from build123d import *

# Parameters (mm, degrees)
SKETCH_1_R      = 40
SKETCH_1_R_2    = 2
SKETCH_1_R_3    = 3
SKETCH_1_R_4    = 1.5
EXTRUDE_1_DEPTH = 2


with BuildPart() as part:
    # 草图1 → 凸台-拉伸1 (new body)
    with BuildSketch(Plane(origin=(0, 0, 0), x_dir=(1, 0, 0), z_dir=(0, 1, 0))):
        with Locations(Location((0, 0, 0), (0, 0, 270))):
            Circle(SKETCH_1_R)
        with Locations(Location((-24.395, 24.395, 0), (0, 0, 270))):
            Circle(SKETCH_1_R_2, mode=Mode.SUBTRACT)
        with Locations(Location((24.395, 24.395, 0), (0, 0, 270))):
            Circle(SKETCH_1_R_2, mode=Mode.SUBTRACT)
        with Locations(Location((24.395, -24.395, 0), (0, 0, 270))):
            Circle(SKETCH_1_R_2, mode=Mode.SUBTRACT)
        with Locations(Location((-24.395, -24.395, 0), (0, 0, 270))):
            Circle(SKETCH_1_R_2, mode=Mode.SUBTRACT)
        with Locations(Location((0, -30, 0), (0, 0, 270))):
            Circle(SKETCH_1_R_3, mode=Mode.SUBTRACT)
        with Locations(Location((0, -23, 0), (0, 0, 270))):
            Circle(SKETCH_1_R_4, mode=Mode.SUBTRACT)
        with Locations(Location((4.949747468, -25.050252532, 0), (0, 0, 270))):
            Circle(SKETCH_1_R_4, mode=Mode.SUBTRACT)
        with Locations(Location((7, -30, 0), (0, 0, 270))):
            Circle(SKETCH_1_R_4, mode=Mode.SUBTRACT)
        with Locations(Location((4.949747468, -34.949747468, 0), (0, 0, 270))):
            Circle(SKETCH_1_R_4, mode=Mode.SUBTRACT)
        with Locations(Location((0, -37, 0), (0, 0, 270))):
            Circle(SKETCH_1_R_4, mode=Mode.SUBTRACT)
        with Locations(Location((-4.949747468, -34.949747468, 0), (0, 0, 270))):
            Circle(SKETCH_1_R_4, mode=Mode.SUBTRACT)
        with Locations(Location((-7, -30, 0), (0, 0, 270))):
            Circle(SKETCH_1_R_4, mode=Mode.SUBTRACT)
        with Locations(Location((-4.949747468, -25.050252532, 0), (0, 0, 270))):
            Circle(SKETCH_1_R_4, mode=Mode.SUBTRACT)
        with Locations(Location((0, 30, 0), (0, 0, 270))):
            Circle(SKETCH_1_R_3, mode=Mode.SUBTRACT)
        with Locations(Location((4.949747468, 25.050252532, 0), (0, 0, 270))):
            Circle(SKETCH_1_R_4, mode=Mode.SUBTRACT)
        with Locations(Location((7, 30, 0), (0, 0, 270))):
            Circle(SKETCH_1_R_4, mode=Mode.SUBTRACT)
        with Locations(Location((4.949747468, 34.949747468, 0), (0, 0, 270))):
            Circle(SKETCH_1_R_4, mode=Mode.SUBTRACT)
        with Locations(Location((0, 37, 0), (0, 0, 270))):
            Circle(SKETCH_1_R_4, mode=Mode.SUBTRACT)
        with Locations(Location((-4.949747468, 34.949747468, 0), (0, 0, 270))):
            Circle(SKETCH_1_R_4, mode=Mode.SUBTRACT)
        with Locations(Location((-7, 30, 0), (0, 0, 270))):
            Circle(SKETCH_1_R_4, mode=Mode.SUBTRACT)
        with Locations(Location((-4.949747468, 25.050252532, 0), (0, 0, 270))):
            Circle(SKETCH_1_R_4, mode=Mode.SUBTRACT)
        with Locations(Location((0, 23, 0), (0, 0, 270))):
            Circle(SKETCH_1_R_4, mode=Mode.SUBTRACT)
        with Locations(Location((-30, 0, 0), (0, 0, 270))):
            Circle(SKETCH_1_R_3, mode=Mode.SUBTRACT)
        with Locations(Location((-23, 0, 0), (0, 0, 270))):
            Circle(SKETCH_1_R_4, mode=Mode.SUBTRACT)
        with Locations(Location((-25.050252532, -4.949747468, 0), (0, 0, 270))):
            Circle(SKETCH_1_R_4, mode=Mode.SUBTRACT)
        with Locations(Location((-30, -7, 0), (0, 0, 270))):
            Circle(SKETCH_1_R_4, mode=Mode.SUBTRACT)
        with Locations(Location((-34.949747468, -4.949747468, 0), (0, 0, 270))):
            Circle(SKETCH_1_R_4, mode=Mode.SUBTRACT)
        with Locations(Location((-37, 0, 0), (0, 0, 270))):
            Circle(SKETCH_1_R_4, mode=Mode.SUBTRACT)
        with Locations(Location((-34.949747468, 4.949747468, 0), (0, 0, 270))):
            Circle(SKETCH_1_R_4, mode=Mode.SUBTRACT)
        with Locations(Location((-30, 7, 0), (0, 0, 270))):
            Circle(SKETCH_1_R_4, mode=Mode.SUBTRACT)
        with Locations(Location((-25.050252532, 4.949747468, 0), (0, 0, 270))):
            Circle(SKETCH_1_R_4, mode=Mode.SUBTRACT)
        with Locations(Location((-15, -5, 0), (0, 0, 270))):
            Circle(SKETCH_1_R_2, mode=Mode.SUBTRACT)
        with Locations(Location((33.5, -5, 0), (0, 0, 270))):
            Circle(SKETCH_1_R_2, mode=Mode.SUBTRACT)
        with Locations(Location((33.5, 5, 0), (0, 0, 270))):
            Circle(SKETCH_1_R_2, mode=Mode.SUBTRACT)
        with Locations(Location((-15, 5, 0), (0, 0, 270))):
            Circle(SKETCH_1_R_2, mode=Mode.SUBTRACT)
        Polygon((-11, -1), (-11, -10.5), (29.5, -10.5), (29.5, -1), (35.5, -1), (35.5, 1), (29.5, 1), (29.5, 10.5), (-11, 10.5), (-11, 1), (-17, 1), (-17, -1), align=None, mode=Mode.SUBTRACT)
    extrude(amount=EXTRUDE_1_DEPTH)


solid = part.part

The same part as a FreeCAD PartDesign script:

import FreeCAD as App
import Part
import Sketcher
from FreeCAD import Vector

doc = App.newDocument("Part")
body = doc.addObject("PartDesign::Body", "Body")

# Sketch on XZ plane
sketch1 = body.newObject("Sketcher::SketchObject", "Sketch")
sketch1.AttachmentSupport = (doc.getObject("XZ_Plane"), [""])
sketch1.MapMode = "FlatFace"
sketch1.addGeometry([
    Part.Circle(Vector(0, 0, 0), Vector(0, 0, 1), 40),  # 0
    Part.Circle(Vector(-24.4, -24.4, 0), Vector(0, 0, 1), 2),  # 1
    Part.Circle(Vector(-34.9, -4.9, 0), Vector(0, 0, 1), 1.5),  # 2
    Part.Circle(Vector(-30, -7, 0), Vector(0, 0, 1), 1.5),  # 3
    Part.Circle(Vector(-25.1, -4.9, 0), Vector(0, 0, 1), 1.5),  # 4
    Part.Circle(Vector(-7, -30, 0), Vector(0, 0, 1), 1.5),  # 5
    Part.Circle(Vector(-4.9, -34.9, 0), Vector(0, 0, 1), 1.5),  # 6
    Part.Circle(Vector(-4.9, -25.1, 0), Vector(0, 0, 1), 1.5),  # 7
    Part.Circle(Vector(-15, -5, 0), Vector(0, 0, 1), 2),  # 8
    Part.Circle(Vector(-37, 0, 0), Vector(0, 0, 1), 1.5),  # 9
    Part.Circle(Vector(-34.9, 4.9, 0), Vector(0, 0, 1), 1.5),  # 10
    Part.Circle(Vector(-30, 0, 0), Vector(0, 0, 1), 3),  # 11
    Part.Circle(Vector(-30, 7, 0), Vector(0, 0, 1), 1.5),  # 12
    Part.Circle(Vector(-25.1, 4.9, 0), Vector(0, 0, 1), 1.5),  # 13
    Part.Circle(Vector(-23, 0, 0), Vector(0, 0, 1), 1.5),  # 14
    Part.Circle(Vector(-24.4, 24.4, 0), Vector(0, 0, 1), 2),  # 15
    Part.Circle(Vector(-15, 5, 0), Vector(0, 0, 1), 2),  # 16
    Part.Circle(Vector(-4.9, 25.1, 0), Vector(0, 0, 1), 1.5),  # 17
    Part.Circle(Vector(-7, 30, 0), Vector(0, 0, 1), 1.5),  # 18
    Part.Circle(Vector(-4.9, 34.9, 0), Vector(0, 0, 1), 1.5),  # 19
    Part.Circle(Vector(0, -37, 0), Vector(0, 0, 1), 1.5),  # 20
    Part.Circle(Vector(0, -30, 0), Vector(0, 0, 1), 3),  # 21
    Part.Circle(Vector(4.9, -34.9, 0), Vector(0, 0, 1), 1.5),  # 22
    Part.Circle(Vector(7, -30, 0), Vector(0, 0, 1), 1.5),  # 23
    Part.Circle(Vector(0, -23, 0), Vector(0, 0, 1), 1.5),  # 24
    Part.Circle(Vector(4.9, -25.1, 0), Vector(0, 0, 1), 1.5),  # 25
    Part.Circle(Vector(24.4, -24.4, 0), Vector(0, 0, 1), 2),  # 26
    Part.Circle(Vector(33.5, -5, 0), Vector(0, 0, 1), 2),  # 27
    Part.LineSegment(Vector(-11, 10.5, 0), Vector(-11, 1, 0)),  # 28
    Part.LineSegment(Vector(-11, 1, 0), Vector(-17, 1, 0)),  # 29
    Part.LineSegment(Vector(-17, 1, 0), Vector(-17, -1, 0)),  # 30
    Part.LineSegment(Vector(-17, -1, 0), Vector(-11, -1, 0)),  # 31
    Part.LineSegment(Vector(-11, -1, 0), Vector(-11, -10.5, 0)),  # 32
    Part.LineSegment(Vector(-11, -10.5, 0), Vector(29.5, -10.5, 0)),  # 33
    Part.LineSegment(Vector(29.5, -10.5, 0), Vector(29.5, -1, 0)),  # 34
    Part.LineSegment(Vector(29.5, -1, 0), Vector(35.5, -1, 0)),  # 35
    Part.LineSegment(Vector(35.5, -1, 0), Vector(35.5, 1, 0)),  # 36
    Part.LineSegment(Vector(35.5, 1, 0), Vector(29.5, 1, 0)),  # 37
    Part.LineSegment(Vector(29.5, 1, 0), Vector(29.5, 10.5, 0)),  # 38
    Part.LineSegment(Vector(29.5, 10.5, 0), Vector(-11, 10.5, 0)),  # 39
    Part.Circle(Vector(0, 23, 0), Vector(0, 0, 1), 1.5),  # 40
    Part.Circle(Vector(4.9, 25.1, 0), Vector(0, 0, 1), 1.5),  # 41
    Part.Circle(Vector(0, 30, 0), Vector(0, 0, 1), 3),  # 42
    Part.Circle(Vector(0, 37, 0), Vector(0, 0, 1), 1.5),  # 43
    Part.Circle(Vector(7, 30, 0), Vector(0, 0, 1), 1.5),  # 44
    Part.Circle(Vector(4.9, 34.9, 0), Vector(0, 0, 1), 1.5),  # 45
    Part.Circle(Vector(33.5, 5, 0), Vector(0, 0, 1), 2),  # 46
    Part.Circle(Vector(24.4, 24.4, 0), Vector(0, 0, 1), 2),  # 47
], False)
sketch1.addConstraint([
    Sketcher.Constraint("Coincident", 28, 2, 29, 1),
    Sketcher.Constraint("Coincident", 29, 2, 30, 1),
    Sketcher.Constraint("Coincident", 30, 2, 31, 1),
    Sketcher.Constraint("Coincident", 31, 2, 32, 1),
    Sketcher.Constraint("Coincident", 32, 2, 33, 1),
    Sketcher.Constraint("Coincident", 33, 2, 34, 1),
    Sketcher.Constraint("Coincident", 34, 2, 35, 1),
    Sketcher.Constraint("Coincident", 35, 2, 36, 1),
    Sketcher.Constraint("Coincident", 36, 2, 37, 1),
    Sketcher.Constraint("Coincident", 37, 2, 38, 1),
    Sketcher.Constraint("Coincident", 38, 2, 39, 1),
    Sketcher.Constraint("Coincident", 39, 2, 28, 1),
    Sketcher.Constraint("Vertical", 28),
    Sketcher.Constraint("Horizontal", 29),
    Sketcher.Constraint("Vertical", 30),
    Sketcher.Constraint("Horizontal", 31),
    Sketcher.Constraint("Vertical", 32),
    Sketcher.Constraint("Horizontal", 33),
    Sketcher.Constraint("Vertical", 34),
    Sketcher.Constraint("Horizontal", 35),
    Sketcher.Constraint("Vertical", 36),
    Sketcher.Constraint("Horizontal", 37),
    Sketcher.Constraint("Vertical", 38),
    Sketcher.Constraint("Horizontal", 39),
    Sketcher.Constraint("Coincident", 0, 3, -1, 1),
    Sketcher.Constraint("Equal", 2, 3),
    Sketcher.Constraint("Equal", 3, 4),
    Sketcher.Constraint("Equal", 4, 5),
    Sketcher.Constraint("Equal", 5, 6),
    Sketcher.Constraint("Equal", 6, 7),
    Sketcher.Constraint("Equal", 1, 8),
    Sketcher.Constraint("Equal", 7, 9),
    Sketcher.Constraint("Equal", 9, 10),
    Sketcher.Constraint("Equal", 10, 12),
    Sketcher.Constraint("Equal", 12, 13),
    Sketcher.Constraint("Equal", 13, 14),
    Sketcher.Constraint("Equal", 8, 15),
    Sketcher.Constraint("Equal", 15, 16),
    Sketcher.Constraint("Equal", 14, 17),
    Sketcher.Constraint("Equal", 17, 18),
    Sketcher.Constraint("Equal", 18, 19),
    Sketcher.Constraint("Equal", 19, 20),
    Sketcher.Constraint("Equal", 11, 21),
    Sketcher.Constraint("Equal", 20, 22),
    Sketcher.Constraint("Equal", 22, 23),
    Sketcher.Constraint("Equal", 23, 24),
    Sketcher.Constraint("Equal", 24, 25),
    Sketcher.Constraint("Equal", 16, 26),
    Sketcher.Constraint("Equal", 26, 27),
    Sketcher.Constraint("Equal", 25, 40),
    Sketcher.Constraint("Equal", 40, 41),
    Sketcher.Constraint("Equal", 21, 42),
    Sketcher.Constraint("Equal", 41, 43),
    Sketcher.Constraint("Equal", 43, 44),
    Sketcher.Constraint("Equal", 44, 45),
    Sketcher.Constraint("Equal", 27, 46),
    Sketcher.Constraint("Equal", 46, 47),
    Sketcher.Constraint("Symmetric", 19, 3, 22, 3, -1, 1),
    Sketcher.Constraint("Symmetric", 18, 3, 23, 3, -1, 1),
    Sketcher.Constraint("Symmetric", 17, 3, 25, 3, -1, 1),
    Sketcher.Constraint("Symmetric", 15, 3, 26, 3, -1, 1),
    Sketcher.Constraint("Symmetric", 24, 3, 40, 3, -1, 1),
    Sketcher.Constraint("Symmetric", 7, 3, 41, 3, -1, 1),
    Sketcher.Constraint("Symmetric", 21, 3, 42, 3, -1, 1),
    Sketcher.Constraint("Symmetric", 20, 3, 43, 3, -1, 1),
    Sketcher.Constraint("Symmetric", 5, 3, 44, 3, -1, 1),
    Sketcher.Constraint("Symmetric", 6, 3, 45, 3, -1, 1),
    Sketcher.Constraint("Symmetric", 1, 3, 47, 3, -1, 1),
    Sketcher.Constraint("Symmetric", 6, 3, 22, 3, -2),
    Sketcher.Constraint("Symmetric", 5, 3, 23, 3, -2),
    Sketcher.Constraint("Symmetric", 7, 3, 25, 3, -2),
    Sketcher.Constraint("Symmetric", 1, 3, 26, 3, -2),
    Sketcher.Constraint("Symmetric", 2, 3, 10, 3, -1),
    Sketcher.Constraint("Symmetric", 3, 3, 12, 3, -1),
    Sketcher.Constraint("Symmetric", 4, 3, 13, 3, -1),
    Sketcher.Constraint("Symmetric", 8, 3, 16, 3, -1),
    Sketcher.Constraint("Symmetric", 27, 3, 46, 3, -1),
    Sketcher.Constraint("Symmetric", 28, 2, 31, 2, -1),
    Sketcher.Constraint("Symmetric", 34, 2, 37, 2, -1),
    Sketcher.Constraint("PointOnObject", 9, 3, -1),
    Sketcher.Constraint("PointOnObject", 11, 3, -1),
    Sketcher.Constraint("PointOnObject", 14, 3, -1),
    Sketcher.Constraint("PointOnObject", 20, 3, -2),
    Sketcher.Constraint("PointOnObject", 21, 3, -2),
    Sketcher.Constraint("PointOnObject", 24, 3, -2),
    Sketcher.Constraint("Horizontal", 2, 3, 4, 3),
    Sketcher.Constraint("Horizontal", 5, 3, 21, 3),
    Sketcher.Constraint("Horizontal", 8, 3, 27, 3),
    Sketcher.Constraint("Horizontal", 31, 2, 34, 2),
    Sketcher.Constraint("Vertical", 6, 3, 7, 3),
    Sketcher.Constraint("Vertical", 3, 3, 11, 3),
    Sketcher.Constraint("Equal", 31, 35),
    Sketcher.Constraint("Equal", 28, 32),
    Sketcher.Constraint("Diameter", 0, 80.0),
    Sketcher.Constraint("Diameter", 1, 4.0),
    Sketcher.Constraint("Diameter", 2, 3.0),
    Sketcher.Constraint("Diameter", 11, 6.0),
    Sketcher.Constraint("DistanceX", 29, 2, 29, 1, 6.0),
    Sketcher.Constraint("DistanceY", 30, 2, 30, 1, 2.0),
    Sketcher.Constraint("DistanceX", 33, 1, 33, 2, 40.5),
    Sketcher.Constraint("DistanceY", 28, 2, 28, 1, 9.5),
    Sketcher.Constraint("DistanceX", 3, 3, -1, 1, 30.0),
    Sketcher.Constraint("DistanceY", 3, 3, -1, 1, 7.0),
    Sketcher.Constraint("DistanceX", 5, 3, -1, 1, 7.0),
    Sketcher.Constraint("DistanceY", 5, 3, -1, 1, 30.0),
    Sketcher.Constraint("DistanceX", 8, 3, -1, 1, 15.0),
    Sketcher.Constraint("DistanceY", 8, 3, -1, 1, 5.0),
    Sketcher.Constraint("DistanceX", 9, 3, -1, 1, 37.0),
    Sketcher.Constraint("DistanceX", 14, 3, -1, 1, 23.0),
    Sketcher.Constraint("DistanceY", 20, 3, -1, 1, 37.0),
    Sketcher.Constraint("DistanceY", 24, 3, -1, 1, 23.0),
    Sketcher.Constraint("DistanceX", 28, 2, -1, 1, 11.0),
    Sketcher.Constraint("DistanceY", 6, 3, 4, 3, 30.0),
    Sketcher.Constraint("DistanceX", 33, 2, 27, 3, 4.0),
    Sketcher.Constraint("DistanceX", 1, 3, -1, 1, 24.395),
    Sketcher.Constraint("DistanceY", 1, 3, -1, 1, 24.395),
    Sketcher.Constraint("DistanceX", 2, 3, -1, 1, 34.949747),
    Sketcher.Constraint("DistanceY", 2, 3, -1, 1, 4.949747),
    Sketcher.Constraint("DistanceX", 4, 3, -1, 1, 25.050253),
    Sketcher.Constraint("DistanceX", 6, 3, -1, 1, 4.949747),
    Sketcher.Constraint("DistanceY", 7, 3, -1, 1, 25.050253),
])
pad1 = body.newObject("PartDesign::Pad", "Pad")
pad1.Profile = sketch1
pad1.Length = 2
pad1.Reversed = True

doc.recompute()
